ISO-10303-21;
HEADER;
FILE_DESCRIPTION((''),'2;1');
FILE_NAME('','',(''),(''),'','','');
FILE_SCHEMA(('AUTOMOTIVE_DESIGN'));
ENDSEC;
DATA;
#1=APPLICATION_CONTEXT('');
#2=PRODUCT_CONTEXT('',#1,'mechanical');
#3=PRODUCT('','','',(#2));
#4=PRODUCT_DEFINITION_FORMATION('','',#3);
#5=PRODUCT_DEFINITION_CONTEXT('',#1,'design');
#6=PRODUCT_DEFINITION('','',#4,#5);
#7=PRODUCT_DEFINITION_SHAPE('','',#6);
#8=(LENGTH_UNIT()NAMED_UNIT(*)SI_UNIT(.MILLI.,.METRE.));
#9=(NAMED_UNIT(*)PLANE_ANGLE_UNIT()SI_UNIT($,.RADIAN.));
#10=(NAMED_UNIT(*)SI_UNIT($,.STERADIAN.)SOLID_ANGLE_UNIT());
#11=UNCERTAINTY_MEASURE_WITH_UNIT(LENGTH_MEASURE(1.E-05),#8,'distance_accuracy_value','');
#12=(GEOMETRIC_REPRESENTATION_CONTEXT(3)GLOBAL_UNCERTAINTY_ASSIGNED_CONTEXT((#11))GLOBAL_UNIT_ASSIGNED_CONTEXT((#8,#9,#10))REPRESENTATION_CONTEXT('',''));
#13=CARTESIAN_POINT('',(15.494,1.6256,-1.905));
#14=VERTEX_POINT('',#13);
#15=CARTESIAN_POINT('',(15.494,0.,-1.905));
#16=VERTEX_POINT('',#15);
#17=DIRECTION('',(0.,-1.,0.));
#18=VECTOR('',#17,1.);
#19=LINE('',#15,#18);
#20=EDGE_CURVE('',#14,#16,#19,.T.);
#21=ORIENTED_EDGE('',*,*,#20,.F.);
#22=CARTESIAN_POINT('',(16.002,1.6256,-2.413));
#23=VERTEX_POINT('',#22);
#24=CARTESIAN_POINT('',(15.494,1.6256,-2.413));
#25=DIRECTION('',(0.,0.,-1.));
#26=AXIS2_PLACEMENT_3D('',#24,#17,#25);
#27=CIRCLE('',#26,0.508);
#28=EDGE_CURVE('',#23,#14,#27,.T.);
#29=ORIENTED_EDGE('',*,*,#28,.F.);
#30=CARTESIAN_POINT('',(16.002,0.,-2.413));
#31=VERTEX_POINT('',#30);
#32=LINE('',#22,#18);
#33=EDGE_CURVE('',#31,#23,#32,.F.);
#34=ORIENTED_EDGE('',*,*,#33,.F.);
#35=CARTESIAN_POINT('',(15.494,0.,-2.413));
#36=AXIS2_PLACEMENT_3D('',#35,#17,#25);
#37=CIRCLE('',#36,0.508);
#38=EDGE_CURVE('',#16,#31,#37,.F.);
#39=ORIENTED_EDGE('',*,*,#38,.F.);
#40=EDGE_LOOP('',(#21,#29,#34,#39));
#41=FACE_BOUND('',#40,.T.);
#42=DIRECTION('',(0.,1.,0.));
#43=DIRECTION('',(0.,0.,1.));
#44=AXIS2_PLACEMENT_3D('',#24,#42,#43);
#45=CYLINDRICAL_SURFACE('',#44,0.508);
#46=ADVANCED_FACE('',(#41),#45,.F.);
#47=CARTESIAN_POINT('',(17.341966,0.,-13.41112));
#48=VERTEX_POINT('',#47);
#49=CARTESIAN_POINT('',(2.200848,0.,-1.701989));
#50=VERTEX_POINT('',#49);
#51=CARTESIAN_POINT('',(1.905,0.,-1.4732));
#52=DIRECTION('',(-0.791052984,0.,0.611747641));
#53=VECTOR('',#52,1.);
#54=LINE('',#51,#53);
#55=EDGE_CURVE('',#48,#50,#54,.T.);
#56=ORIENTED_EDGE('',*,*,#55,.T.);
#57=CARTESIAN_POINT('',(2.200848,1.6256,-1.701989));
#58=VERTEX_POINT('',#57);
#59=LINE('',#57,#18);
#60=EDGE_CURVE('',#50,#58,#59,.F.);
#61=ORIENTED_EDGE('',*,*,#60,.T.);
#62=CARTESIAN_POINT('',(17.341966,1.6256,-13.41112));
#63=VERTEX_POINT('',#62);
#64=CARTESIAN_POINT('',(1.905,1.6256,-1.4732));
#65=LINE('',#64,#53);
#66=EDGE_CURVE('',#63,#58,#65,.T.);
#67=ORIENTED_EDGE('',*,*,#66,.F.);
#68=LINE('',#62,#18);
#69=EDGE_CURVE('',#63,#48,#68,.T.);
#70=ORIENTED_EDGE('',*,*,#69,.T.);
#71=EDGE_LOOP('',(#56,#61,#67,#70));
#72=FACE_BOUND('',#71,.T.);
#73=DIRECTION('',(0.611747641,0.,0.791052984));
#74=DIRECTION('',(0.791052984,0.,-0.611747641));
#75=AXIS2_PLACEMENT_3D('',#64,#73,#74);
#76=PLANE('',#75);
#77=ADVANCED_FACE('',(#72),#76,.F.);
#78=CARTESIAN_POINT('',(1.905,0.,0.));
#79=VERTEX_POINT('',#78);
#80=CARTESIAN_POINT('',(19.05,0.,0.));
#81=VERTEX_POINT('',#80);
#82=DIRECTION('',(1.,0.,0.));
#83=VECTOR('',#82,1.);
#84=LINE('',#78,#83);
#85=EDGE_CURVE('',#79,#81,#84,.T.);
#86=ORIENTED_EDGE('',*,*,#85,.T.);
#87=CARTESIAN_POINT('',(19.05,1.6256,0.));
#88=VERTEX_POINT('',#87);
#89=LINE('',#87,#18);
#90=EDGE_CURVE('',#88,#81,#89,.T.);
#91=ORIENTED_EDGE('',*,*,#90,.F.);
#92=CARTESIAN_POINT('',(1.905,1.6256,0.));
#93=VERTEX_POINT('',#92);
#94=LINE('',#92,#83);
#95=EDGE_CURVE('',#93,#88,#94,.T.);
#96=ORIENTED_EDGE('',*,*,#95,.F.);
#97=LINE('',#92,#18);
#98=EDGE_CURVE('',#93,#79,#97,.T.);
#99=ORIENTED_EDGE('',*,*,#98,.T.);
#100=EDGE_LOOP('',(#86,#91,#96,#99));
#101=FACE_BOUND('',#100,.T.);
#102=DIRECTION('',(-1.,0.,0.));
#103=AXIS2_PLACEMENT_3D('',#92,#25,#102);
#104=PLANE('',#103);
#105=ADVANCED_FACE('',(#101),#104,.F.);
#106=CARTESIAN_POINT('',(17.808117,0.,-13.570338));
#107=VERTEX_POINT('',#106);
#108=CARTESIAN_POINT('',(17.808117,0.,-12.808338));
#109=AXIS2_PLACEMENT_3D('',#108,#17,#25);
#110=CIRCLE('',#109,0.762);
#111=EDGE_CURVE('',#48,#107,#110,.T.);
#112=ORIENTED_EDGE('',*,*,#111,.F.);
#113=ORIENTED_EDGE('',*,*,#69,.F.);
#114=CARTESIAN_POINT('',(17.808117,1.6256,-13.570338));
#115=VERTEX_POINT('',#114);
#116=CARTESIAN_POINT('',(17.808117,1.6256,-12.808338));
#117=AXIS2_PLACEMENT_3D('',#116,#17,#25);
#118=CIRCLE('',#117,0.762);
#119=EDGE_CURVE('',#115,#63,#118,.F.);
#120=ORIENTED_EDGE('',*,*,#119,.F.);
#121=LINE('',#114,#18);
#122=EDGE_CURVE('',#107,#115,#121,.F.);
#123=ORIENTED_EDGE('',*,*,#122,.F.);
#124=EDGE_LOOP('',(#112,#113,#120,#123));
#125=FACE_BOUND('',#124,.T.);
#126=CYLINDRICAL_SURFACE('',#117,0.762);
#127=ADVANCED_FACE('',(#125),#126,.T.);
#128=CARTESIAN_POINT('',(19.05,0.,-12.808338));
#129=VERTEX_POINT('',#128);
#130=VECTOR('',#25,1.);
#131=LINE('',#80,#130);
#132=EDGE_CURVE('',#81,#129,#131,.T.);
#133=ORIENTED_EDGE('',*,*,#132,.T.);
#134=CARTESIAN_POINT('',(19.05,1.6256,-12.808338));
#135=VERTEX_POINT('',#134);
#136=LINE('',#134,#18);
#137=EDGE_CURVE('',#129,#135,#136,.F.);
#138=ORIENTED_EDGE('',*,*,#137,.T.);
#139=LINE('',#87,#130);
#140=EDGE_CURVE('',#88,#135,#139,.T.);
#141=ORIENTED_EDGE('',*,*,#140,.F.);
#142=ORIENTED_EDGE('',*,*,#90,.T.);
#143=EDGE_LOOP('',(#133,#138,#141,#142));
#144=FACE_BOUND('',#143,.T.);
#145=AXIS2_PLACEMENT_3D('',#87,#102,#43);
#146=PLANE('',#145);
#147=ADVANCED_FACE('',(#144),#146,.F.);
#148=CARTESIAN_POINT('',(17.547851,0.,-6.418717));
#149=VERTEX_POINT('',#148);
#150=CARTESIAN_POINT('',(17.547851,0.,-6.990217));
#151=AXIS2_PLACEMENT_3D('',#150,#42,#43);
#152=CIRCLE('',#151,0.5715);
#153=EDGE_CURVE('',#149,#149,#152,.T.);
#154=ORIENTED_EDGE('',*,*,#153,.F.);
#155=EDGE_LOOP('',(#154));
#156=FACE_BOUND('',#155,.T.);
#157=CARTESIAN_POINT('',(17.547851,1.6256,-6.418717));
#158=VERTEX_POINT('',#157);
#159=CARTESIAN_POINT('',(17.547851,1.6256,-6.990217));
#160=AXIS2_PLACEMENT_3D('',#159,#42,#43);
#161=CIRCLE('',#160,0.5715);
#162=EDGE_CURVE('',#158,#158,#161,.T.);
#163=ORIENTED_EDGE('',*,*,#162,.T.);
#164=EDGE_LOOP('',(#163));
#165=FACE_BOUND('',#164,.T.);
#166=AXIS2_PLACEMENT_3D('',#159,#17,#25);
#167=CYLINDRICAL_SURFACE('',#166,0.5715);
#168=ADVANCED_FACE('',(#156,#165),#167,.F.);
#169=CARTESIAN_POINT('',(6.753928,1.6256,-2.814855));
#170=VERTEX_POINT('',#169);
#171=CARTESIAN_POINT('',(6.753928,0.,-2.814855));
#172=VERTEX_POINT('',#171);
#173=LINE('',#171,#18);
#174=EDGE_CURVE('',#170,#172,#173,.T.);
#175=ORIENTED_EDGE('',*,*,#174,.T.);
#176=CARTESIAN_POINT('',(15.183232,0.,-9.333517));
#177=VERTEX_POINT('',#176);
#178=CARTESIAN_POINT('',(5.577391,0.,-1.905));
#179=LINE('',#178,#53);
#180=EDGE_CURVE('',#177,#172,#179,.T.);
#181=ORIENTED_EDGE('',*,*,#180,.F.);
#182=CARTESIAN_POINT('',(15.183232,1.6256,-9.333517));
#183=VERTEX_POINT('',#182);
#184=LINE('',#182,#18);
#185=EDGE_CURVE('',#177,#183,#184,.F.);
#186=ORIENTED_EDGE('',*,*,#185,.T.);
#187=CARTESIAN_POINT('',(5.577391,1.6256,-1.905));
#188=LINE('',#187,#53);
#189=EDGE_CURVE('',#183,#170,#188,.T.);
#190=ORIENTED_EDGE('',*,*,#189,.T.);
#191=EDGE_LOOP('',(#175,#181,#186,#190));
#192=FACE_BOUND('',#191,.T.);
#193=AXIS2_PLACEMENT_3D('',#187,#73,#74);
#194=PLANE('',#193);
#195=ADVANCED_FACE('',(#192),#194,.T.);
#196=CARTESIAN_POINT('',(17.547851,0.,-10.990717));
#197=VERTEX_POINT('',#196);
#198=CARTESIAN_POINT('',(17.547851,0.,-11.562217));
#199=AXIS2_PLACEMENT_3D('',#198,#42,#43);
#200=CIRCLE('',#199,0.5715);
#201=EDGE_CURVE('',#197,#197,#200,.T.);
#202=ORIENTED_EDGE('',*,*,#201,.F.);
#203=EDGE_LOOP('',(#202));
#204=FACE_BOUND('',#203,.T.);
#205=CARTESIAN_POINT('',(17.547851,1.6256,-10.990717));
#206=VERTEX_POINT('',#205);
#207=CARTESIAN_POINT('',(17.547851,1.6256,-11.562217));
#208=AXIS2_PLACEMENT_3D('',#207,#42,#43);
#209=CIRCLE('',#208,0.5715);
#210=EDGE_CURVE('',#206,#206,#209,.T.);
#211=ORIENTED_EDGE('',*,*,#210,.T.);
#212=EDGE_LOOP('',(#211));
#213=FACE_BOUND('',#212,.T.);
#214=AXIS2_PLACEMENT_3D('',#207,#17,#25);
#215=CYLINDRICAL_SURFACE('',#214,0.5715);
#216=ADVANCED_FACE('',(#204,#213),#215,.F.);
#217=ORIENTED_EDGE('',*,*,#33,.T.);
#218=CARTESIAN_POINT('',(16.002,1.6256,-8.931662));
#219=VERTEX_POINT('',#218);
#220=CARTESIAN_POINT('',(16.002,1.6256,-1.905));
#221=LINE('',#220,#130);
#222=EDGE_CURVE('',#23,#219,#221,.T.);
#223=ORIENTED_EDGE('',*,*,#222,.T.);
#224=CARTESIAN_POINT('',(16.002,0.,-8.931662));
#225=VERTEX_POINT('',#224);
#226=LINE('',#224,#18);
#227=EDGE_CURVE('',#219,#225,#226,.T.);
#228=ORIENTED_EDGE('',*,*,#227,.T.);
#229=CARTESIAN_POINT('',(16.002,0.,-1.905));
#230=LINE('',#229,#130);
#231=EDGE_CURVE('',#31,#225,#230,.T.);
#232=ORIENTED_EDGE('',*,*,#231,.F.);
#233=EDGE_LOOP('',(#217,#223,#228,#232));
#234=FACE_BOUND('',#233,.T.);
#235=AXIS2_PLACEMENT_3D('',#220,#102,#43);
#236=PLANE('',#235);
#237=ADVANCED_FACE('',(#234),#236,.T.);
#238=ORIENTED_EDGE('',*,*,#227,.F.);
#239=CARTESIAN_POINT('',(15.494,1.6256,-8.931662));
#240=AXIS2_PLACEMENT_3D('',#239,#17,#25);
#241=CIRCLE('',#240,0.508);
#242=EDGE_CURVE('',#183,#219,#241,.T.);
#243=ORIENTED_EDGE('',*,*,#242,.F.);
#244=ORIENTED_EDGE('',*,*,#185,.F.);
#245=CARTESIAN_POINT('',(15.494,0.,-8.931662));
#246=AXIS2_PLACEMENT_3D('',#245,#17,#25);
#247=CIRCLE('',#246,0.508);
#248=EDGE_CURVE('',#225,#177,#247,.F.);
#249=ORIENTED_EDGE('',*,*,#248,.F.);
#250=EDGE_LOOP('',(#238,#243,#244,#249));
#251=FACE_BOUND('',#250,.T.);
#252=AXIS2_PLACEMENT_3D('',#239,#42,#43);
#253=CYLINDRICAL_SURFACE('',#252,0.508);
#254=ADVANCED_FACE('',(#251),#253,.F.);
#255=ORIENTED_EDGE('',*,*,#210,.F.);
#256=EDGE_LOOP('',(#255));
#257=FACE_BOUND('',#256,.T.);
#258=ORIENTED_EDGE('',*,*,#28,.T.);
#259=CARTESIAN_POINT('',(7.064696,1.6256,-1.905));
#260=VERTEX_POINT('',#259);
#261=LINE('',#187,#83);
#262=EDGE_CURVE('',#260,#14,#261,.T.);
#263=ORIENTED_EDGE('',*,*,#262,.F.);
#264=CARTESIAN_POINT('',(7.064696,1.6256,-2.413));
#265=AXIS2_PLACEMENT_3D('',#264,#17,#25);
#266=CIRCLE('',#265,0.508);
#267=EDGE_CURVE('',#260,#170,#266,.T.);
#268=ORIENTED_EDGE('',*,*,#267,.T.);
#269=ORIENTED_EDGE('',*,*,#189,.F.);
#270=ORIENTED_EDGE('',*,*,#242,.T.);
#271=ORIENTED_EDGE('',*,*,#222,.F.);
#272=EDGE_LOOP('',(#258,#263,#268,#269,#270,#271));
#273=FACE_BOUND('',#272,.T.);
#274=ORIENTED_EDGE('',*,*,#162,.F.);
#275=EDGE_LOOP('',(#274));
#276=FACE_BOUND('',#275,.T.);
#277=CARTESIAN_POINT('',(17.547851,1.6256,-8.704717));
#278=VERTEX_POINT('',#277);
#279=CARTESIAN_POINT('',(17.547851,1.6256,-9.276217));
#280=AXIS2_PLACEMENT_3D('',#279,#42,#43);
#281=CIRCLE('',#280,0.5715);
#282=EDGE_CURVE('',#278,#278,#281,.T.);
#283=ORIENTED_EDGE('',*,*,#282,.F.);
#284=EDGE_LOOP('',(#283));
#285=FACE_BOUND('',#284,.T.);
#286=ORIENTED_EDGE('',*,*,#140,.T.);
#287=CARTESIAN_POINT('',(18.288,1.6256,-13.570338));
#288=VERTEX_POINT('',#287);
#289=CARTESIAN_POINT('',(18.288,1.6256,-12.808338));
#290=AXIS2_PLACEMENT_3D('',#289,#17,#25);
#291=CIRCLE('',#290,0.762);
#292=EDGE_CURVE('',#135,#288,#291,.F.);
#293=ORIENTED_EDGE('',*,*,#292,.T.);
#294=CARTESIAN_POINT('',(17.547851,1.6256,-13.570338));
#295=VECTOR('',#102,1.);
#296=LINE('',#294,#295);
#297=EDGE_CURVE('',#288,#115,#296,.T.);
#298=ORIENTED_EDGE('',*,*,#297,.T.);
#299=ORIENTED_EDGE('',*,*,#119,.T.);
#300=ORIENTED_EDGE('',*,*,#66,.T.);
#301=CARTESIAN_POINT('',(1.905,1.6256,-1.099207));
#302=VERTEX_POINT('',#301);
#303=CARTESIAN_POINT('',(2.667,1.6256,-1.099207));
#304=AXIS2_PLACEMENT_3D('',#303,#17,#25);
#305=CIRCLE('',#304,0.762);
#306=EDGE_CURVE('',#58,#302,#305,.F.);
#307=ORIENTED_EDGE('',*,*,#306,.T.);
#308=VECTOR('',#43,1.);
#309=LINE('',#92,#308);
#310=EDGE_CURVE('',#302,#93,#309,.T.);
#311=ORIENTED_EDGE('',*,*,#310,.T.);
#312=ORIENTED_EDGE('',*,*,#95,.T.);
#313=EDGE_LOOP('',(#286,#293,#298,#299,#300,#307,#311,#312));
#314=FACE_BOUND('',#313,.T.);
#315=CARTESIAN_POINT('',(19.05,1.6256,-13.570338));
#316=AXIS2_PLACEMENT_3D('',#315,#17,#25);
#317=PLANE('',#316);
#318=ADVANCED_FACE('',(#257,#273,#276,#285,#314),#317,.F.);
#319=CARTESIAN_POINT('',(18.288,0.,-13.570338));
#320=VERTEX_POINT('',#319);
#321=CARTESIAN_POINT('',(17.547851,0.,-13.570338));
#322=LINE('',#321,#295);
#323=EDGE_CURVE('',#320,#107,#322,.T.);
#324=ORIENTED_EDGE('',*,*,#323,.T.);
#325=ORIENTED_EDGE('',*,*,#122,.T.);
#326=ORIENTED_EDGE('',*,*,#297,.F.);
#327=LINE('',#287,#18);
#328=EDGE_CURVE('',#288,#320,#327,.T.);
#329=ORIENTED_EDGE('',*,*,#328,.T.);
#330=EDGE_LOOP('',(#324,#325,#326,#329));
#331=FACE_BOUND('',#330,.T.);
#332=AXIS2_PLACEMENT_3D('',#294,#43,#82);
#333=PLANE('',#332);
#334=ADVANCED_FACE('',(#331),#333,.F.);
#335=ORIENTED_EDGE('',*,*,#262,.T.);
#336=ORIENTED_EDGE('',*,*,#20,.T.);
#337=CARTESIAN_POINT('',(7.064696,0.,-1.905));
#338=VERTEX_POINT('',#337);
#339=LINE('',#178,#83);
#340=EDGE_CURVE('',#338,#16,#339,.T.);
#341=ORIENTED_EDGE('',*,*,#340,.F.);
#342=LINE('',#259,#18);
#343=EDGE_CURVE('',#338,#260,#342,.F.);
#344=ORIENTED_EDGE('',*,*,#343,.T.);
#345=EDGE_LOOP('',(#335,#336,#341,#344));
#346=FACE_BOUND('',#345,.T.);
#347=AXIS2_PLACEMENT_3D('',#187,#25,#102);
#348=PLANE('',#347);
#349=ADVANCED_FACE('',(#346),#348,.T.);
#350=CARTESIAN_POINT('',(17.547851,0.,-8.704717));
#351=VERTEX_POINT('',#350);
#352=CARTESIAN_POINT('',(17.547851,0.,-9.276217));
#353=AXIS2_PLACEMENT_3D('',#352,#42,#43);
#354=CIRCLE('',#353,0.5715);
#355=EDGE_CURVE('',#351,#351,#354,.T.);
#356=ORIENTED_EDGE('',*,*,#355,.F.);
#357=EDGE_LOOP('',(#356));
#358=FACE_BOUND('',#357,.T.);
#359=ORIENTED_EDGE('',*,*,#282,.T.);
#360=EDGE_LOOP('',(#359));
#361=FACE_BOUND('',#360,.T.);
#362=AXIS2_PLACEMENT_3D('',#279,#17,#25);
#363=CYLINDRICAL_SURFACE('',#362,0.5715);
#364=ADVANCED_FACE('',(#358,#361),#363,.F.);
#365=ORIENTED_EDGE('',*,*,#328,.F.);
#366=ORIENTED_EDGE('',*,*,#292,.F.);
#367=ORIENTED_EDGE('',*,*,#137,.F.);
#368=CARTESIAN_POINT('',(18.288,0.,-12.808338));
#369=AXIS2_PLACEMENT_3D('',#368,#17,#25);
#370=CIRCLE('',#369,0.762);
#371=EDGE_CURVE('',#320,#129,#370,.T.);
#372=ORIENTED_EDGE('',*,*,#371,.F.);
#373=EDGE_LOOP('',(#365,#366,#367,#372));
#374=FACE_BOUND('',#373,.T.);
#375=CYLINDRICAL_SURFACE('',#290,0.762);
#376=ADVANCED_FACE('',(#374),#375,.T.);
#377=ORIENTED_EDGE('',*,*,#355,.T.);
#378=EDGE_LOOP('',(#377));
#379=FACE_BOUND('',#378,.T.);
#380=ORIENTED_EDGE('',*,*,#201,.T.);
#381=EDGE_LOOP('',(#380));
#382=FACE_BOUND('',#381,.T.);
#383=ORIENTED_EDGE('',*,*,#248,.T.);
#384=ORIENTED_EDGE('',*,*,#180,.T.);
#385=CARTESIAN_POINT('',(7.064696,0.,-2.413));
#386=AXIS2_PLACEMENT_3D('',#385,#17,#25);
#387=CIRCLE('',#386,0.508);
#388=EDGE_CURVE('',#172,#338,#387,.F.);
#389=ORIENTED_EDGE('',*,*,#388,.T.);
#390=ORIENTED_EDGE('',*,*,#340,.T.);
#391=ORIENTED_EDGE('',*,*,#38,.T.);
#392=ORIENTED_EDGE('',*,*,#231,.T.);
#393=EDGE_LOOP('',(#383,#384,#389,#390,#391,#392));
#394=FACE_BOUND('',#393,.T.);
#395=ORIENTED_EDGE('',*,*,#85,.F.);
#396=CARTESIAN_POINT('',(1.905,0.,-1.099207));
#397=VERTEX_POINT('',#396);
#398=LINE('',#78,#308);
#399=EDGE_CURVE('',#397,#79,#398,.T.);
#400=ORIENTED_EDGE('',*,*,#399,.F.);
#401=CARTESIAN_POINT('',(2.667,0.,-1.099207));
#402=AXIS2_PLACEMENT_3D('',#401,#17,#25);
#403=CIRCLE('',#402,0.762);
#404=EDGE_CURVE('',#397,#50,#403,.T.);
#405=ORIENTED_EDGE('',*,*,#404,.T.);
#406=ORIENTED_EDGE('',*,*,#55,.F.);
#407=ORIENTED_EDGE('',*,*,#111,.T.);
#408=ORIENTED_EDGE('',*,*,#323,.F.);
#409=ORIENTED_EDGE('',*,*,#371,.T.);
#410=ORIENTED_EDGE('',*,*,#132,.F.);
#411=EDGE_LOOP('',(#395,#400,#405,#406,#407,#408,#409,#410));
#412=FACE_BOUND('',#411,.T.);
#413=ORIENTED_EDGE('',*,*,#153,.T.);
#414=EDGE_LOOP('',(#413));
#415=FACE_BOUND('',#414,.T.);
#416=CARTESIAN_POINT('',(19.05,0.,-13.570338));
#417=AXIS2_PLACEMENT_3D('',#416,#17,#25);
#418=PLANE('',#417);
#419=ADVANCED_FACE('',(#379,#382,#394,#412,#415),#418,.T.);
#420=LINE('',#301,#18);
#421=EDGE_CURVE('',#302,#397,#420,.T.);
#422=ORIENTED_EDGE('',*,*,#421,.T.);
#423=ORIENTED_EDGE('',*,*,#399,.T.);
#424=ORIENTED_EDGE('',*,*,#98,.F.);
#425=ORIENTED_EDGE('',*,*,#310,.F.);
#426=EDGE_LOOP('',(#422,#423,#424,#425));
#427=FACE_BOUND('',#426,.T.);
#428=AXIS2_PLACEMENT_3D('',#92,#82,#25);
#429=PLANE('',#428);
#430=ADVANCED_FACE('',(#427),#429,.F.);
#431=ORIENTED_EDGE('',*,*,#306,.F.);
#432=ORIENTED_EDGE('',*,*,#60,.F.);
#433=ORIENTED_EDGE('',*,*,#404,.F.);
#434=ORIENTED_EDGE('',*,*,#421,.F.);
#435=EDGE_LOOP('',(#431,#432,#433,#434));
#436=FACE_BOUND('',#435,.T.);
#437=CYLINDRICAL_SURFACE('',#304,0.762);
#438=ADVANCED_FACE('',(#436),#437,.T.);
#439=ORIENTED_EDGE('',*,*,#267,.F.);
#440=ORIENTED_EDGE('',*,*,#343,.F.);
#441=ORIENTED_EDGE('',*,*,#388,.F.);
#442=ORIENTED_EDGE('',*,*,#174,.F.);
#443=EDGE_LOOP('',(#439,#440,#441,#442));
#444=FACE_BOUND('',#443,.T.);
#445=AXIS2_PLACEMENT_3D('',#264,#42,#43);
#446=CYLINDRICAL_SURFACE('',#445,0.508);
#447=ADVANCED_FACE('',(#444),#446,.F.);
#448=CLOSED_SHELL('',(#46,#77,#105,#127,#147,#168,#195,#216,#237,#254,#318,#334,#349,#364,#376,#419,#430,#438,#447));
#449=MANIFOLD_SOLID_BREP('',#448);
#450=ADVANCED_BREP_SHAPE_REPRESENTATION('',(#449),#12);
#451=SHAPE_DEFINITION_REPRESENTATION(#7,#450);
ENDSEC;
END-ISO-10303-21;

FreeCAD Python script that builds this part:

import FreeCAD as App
import Part
import Sketcher
from FreeCAD import Vector
Q = App.Units.Quantity


def edges_at(feature, points):
    """Names of the edges that pass closest to the given points."""
    edges = feature.Shape.Edges
    near = lambda p: min(range(len(edges)), key=lambda i: edges[i].distToShape(Part.Vertex(*p))[0])
    return sorted({f"Edge{near(p) + 1}" for p in points})


def add_polygon(sketch, points):
    """Adds a closed chain of lines whose ends are joined by coincident constraints."""
    first, n = sketch.GeometryCount, len(points)
    for a, b in zip(points, points[1:] + points[:1]):
        sketch.addGeometry(Part.LineSegment(App.Vector(*a, 0), App.Vector(*b, 0)), False)
    for i in range(n):
        sketch.addConstraint(Sketcher.Constraint("Coincident", first + i, 2, first + (i + 1) % n, 1))

doc = App.newDocument("Part")
body = doc.addObject("PartDesign::Body", "Body")

sketch1 = body.newObject("Sketcher::SketchObject", "Sketch")
sketch1.AttachmentSupport = (doc.getObject("XZ_Plane"), [""])
sketch1.MapMode = "FlatFace"
add_polygon(sketch1, [(17.547851, -13.570338), (1.905, -1.4732), (1.905, 0), (19.05, 0), (19.05, -13.570338)])
sketch1.addGeometry(Part.Circle(Vector(17.547851, -6.990217, 0), Vector(0, 0, 1), 0.5715), False)
add_polygon(sketch1, [(5.577391, -1.905), (16.002, -9.966697), (16.002, -1.905)])
sketch1.addGeometry(Part.Circle(Vector(17.547851, -9.276217, 0), Vector(0, 0, 1), 0.5715), False)
sketch1.addGeometry(Part.Circle(Vector(17.547851, -11.562217, 0), Vector(0, 0, 1), 0.5715), False)
sketch1.addConstraint(Sketcher.Constraint("Vertical", 1))
sketch1.addConstraint(Sketcher.Constraint("Horizontal", 2))
sketch1.addConstraint(Sketcher.Constraint("Vertical", 3))
sketch1.addConstraint(Sketcher.Constraint("Horizontal", 4))
sketch1.addConstraint(Sketcher.Constraint("Vertical", 7))
sketch1.addConstraint(Sketcher.Constraint("Horizontal", 8))
sketch1.addConstraint(Sketcher.Constraint("Equal", 5, 9))
sketch1.addConstraint(Sketcher.Constraint("Equal", 9, 10))
sketch1.addConstraint(Sketcher.Constraint("PointOnObject", 1, 2, -1))
sketch1.addConstraint(Sketcher.Constraint("Parallel", 0, 6))
sketch1.addConstraint(Sketcher.Constraint("Vertical", 5, 3, 9, 3))
sketch1.addConstraint(Sketcher.Constraint("Vertical", 9, 3, 10, 3))
sketch1.addConstraint(Sketcher.Constraint("Vertical", 10, 3, 4, 2))
sketch1.addConstraint(Sketcher.Constraint("Diameter", 5, Q("0.045 in")))
sketch1.addConstraint(Sketcher.Constraint("DistanceX", 2, 1, 2, 2, Q("0.675 in")))
sketch1.addConstraint(Sketcher.Constraint("DistanceY", 1, 1, 1, 2, Q("0.058 in")))
sketch1.addConstraint(Sketcher.Constraint("DistanceX", -1, 1, 2, 2, Q("0.75 in")))
sketch1.addConstraint(Sketcher.Constraint("DistanceX", -1, 1, 6, 2, Q("0.63 in")))
sketch1.addConstraint(Sketcher.Constraint("DistanceY", 9, 3, 5, 3, Q("0.09 in")))
sketch1.addConstraint(Sketcher.Constraint("DistanceY", 10, 3, 9, 3, Q("0.09 in")))
sketch1.addConstraint(Sketcher.Constraint("DistanceY", 7, 2, -1, 1, Q("0.075 in")))
sketch1.addConstraint(Sketcher.Constraint("DistanceX", 4, 2, 4, 1, Q("1.502149 mm")))
sketch1.addConstraint(Sketcher.Constraint("DistanceX", 8, 2, 8, 1, Q("10.424609 mm")))
sketch1.addConstraint(Sketcher.Constraint("Distance", 0, Q("19.774719 mm")))
sketch1.addConstraint(Sketcher.Constraint("DistanceY", 3, 2, 10, 3, Q("2.008121 mm")))
pad1 = body.newObject("PartDesign::Pad", "Pad")
pad1.Profile = sketch1
pad1.Length = Q("0.064 in")
pad1.Reversed = True
doc.recompute()

fillet = body.newObject("PartDesign::Fillet", "Fillet")
fillet.Base = (pad1, edges_at(pad1, [(16.002, 0.813, -9.967), (5.577, 0.813, -1.905), (16.002, 0.813, -1.905)]))
fillet.Radius = Q("0.02 in")
doc.recompute()

fillet2 = body.newObject("PartDesign::Fillet", "Fillet001")
fillet2.Base = (fillet, edges_at(fillet, [(1.905, 0.813, -1.473), (17.548, 0.813, -13.57), (19.05, 0.813, -13.57)]))
fillet2.Radius = Q("0.03 in")

doc.recompute()
